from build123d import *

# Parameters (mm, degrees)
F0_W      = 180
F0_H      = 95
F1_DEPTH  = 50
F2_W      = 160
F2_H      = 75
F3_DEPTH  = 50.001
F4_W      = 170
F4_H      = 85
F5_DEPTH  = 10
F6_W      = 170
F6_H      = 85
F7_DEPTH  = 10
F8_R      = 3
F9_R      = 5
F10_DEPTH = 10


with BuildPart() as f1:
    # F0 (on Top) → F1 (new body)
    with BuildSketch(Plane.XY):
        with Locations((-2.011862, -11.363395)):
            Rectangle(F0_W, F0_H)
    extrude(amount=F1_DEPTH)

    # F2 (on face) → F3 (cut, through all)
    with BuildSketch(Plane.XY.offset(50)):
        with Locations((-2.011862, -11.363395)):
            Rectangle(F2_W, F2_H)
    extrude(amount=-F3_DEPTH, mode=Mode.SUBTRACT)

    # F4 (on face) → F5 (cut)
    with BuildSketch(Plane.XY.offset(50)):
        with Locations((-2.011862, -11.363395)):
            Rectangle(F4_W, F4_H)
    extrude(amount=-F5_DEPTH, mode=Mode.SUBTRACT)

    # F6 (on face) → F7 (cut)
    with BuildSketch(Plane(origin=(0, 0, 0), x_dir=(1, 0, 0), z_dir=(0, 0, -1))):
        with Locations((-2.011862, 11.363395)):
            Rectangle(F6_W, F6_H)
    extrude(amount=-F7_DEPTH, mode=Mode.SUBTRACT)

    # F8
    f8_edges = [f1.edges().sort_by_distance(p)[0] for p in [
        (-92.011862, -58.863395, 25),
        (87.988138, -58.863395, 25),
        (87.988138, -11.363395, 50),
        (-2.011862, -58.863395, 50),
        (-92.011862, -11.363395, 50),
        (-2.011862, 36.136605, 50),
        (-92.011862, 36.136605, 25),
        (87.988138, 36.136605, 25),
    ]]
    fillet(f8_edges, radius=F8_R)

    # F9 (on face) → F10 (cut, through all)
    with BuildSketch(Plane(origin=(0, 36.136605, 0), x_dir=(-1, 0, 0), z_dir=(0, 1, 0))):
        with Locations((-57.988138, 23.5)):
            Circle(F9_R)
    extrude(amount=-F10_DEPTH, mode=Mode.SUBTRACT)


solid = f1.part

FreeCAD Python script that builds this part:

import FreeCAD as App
import Part
import Sketcher


def edges_at(feature, points):
    """Names of the edges that pass closest to the given points."""
    edges = feature.Shape.Edges
    near = lambda p: min(range(len(edges)), key=lambda i: edges[i].distToShape(Part.Vertex(*p))[0])
    return sorted({f"Edge{near(p) + 1}" for p in points})

doc = App.newDocument("Part")
body = doc.addObject("PartDesign::Body", "Body")

# Sketch on XY plane
sketch1 = body.newObject("Sketcher::SketchObject", "Sketch")
sketch1.AttachmentSupport = (doc.getObject("XY_Plane"), [""])
sketch1.MapMode = "FlatFace"
sketch1.addGeometry(Part.LineSegment(App.Vector(-92, 36, 0), App.Vector(-92, -59, 0)), False)
sketch1.addGeometry(Part.LineSegment(App.Vector(-92, -59, 0), App.Vector(88, -59, 0)), False)
sketch1.addGeometry(Part.LineSegment(App.Vector(88, -59, 0), App.Vector(88, 36, 0)), False)
sketch1.addGeometry(Part.LineSegment(App.Vector(88, 36, 0), App.Vector(-92, 36, 0)), False)
sketch1.addConstraint(Sketcher.Constraint("Coincident", 0, 2, 1, 1))
sketch1.addConstraint(Sketcher.Constraint("Coincident", 1, 2, 2, 1))
sketch1.addConstraint(Sketcher.Constraint("Coincident", 2, 2, 3, 1))
sketch1.addConstraint(Sketcher.Constraint("Coincident", 3, 2, 0, 1))
sketch1.addConstraint(Sketcher.Constraint("Vertical", 0))
sketch1.addConstraint(Sketcher.Constraint("Horizontal", 1))
sketch1.addConstraint(Sketcher.Constraint("Vertical", 2))
sketch1.addConstraint(Sketcher.Constraint("Horizontal", 3))
sketch1.addConstraint(Sketcher.Constraint("DistanceX", 1, 1, 1, 2, 180.0))
sketch1.addConstraint(Sketcher.Constraint("DistanceY", 0, 2, 0, 1, 95.0))
sketch1.addConstraint(Sketcher.Constraint("DistanceX", 0, 2, -1, 1, 92.011862))
sketch1.addConstraint(Sketcher.Constraint("DistanceY", 0, 2, -1, 1, 58.863395))
pad1 = body.newObject("PartDesign::Pad", "Pad")
pad1.Profile = sketch1
pad1.Length = 50

# Sketch on XY plane
sketch2 = body.newObject("Sketcher::SketchObject", "Sketch001")
sketch2.AttachmentSupport = (doc.getObject("XY_Plane"), [""])
sketch2.MapMode = "FlatFace"
sketch2.AttachmentOffset = App.Placement(App.Vector(0, 0, 50), App.Rotation())
sketch2.addGeometry(Part.LineSegment(App.Vector(-82, 26, 0), App.Vector(-82, -49, 0)), False)
sketch2.addGeometry(Part.LineSegment(App.Vector(-82, -49, 0), App.Vector(78, -49, 0)), False)
sketch2.addGeometry(Part.LineSegment(App.Vector(78, -49, 0), App.Vector(78, 26, 0)), False)
sketch2.addGeometry(Part.LineSegment(App.Vector(78, 26, 0), App.Vector(-82, 26, 0)), False)
sketch2.addConstraint(Sketcher.Constraint("Coincident", 0, 2, 1, 1))
sketch2.addConstraint(Sketcher.Constraint("Coincident", 1, 2, 2, 1))
sketch2.addConstraint(Sketcher.Constraint("Coincident", 2, 2, 3, 1))
sketch2.addConstraint(Sketcher.Constraint("Coincident", 3, 2, 0, 1))
sketch2.addConstraint(Sketcher.Constraint("Vertical", 0))
sketch2.addConstraint(Sketcher.Constraint("Horizontal", 1))
sketch2.addConstraint(Sketcher.Constraint("Vertical", 2))
sketch2.addConstraint(Sketcher.Constraint("Horizontal", 3))
sketch2.addConstraint(Sketcher.Constraint("DistanceX", 1, 1, 1, 2, 160.0))
sketch2.addConstraint(Sketcher.Constraint("DistanceY", 0, 2, 0, 1, 75.0))
sketch2.addConstraint(Sketcher.Constraint("DistanceX", 0, 2, -1, 1, 82.011862))
sketch2.addConstraint(Sketcher.Constraint("DistanceY", 0, 2, -1, 1, 48.863395))
pocket1 = body.newObject("PartDesign::Pocket", "Pocket")
pocket1.Profile = sketch2
pocket1.Type = "ThroughAll"

# Sketch on XY plane
sketch3 = body.newObject("Sketcher::SketchObject", "Sketch002")
sketch3.AttachmentSupport = (doc.getObject("XY_Plane"), [""])
sketch3.MapMode = "FlatFace"
sketch3.AttachmentOffset = App.Placement(App.Vector(0, 0, 50), App.Rotation())
sketch3.addGeometry(Part.LineSegment(App.Vector(-87, 31, 0), App.Vector(-87, -54, 0)), False)
sketch3.addGeometry(Part.LineSegment(App.Vector(-87, -54, 0), App.Vector(83, -54, 0)), False)
sketch3.addGeometry(Part.LineSegment(App.Vector(83, -54, 0), App.Vector(83, 31, 0)), False)
sketch3.addGeometry(Part.LineSegment(App.Vector(83, 31, 0), App.Vector(-87, 31, 0)), False)
sketch3.addConstraint(Sketcher.Constraint("Coincident", 0, 2, 1, 1))
sketch3.addConstraint(Sketcher.Constraint("Coincident", 1, 2, 2, 1))
sketch3.addConstraint(Sketcher.Constraint("Coincident", 2, 2, 3, 1))
sketch3.addConstraint(Sketcher.Constraint("Coincident", 3, 2, 0, 1))
sketch3.addConstraint(Sketcher.Constraint("Vertical", 0))
sketch3.addConstraint(Sketcher.Constraint("Horizontal", 1))
sketch3.addConstraint(Sketcher.Constraint("Vertical", 2))
sketch3.addConstraint(Sketcher.Constraint("Horizontal", 3))
sketch3.addConstraint(Sketcher.Constraint("DistanceX", 1, 1, 1, 2, 170.0))
sketch3.addConstraint(Sketcher.Constraint("DistanceY", 0, 2, 0, 1, 85.0))
sketch3.addConstraint(Sketcher.Constraint("DistanceX", 0, 2, -1, 1, 87.011862))
sketch3.addConstraint(Sketcher.Constraint("DistanceY", 0, 2, -1, 1, 53.863395))
pocket2 = body.newObject("PartDesign::Pocket", "Pocket001")
pocket2.Profile = sketch3
pocket2.Length = 10

# Sketch on XY plane
sketch4 = body.newObject("Sketcher::SketchObject", "Sketch003")
sketch4.AttachmentSupport = (doc.getObject("XY_Plane"), [""])
sketch4.MapMode = "FlatFace"
sketch4.addGeometry(Part.LineSegment(App.Vector(-87, -54, 0), App.Vector(-87, 31, 0)), False)
sketch4.addGeometry(Part.LineSegment(App.Vector(-87, 31, 0), App.Vector(83, 31, 0)), False)
sketch4.addGeometry(Part.LineSegment(App.Vector(83, 31, 0), App.Vector(83, -54, 0)), False)
sketch4.addGeometry(Part.LineSegment(App.Vector(83, -54, 0), App.Vector(-87, -54, 0)), False)
sketch4.addConstraint(Sketcher.Constraint("Coincident", 0, 2, 1, 1))
sketch4.addConstraint(Sketcher.Constraint("Coincident", 1, 2, 2, 1))
sketch4.addConstraint(Sketcher.Constraint("Coincident", 2, 2, 3, 1))
sketch4.addConstraint(Sketcher.Constraint("Coincident", 3, 2, 0, 1))
sketch4.addConstraint(Sketcher.Constraint("Vertical", 0))
sketch4.addConstraint(Sketcher.Constraint("Horizontal", 1))
sketch4.addConstraint(Sketcher.Constraint("Vertical", 2))
sketch4.addConstraint(Sketcher.Constraint("Horizontal", 3))
sketch4.addConstraint(Sketcher.Constraint("DistanceX", 1, 1, 1, 2, 170.0))
sketch4.addConstraint(Sketcher.Constraint("DistanceY", 0, 1, 0, 2, 85.0))
sketch4.addConstraint(Sketcher.Constraint("DistanceX", 0, 2, -1, 1, 87.011862))
sketch4.addConstraint(Sketcher.Constraint("DistanceY", -1, 1, 0, 2, 31.136605))
pocket3 = body.newObject("PartDesign::Pocket", "Pocket002")
pocket3.Profile = sketch4
pocket3.Length = 10
pocket3.Reversed = True
doc.recompute()

fillet = body.newObject("PartDesign::Fillet", "Fillet")
fillet.Base = (pocket3, edges_at(pocket3, [
    (-92.012, -58.863, 25),
    (87.988, -58.863, 25),
    (87.988, -11.363, 50),
    (-2.012, -58.863, 50),
    (-92.012, -11.363, 50),
    (-2.012, 36.137, 50),
    (-92.012, 36.137, 25),
    (87.988, 36.137, 25),
]))
fillet.Radius = 3

# Sketch on XZ plane
sketch5 = body.newObject("Sketcher::SketchObject", "Sketch004")
sketch5.AttachmentSupport = (doc.getObject("XZ_Plane"), [""])
sketch5.MapMode = "FlatFace"
sketch5.AttachmentOffset = App.Placement(App.Vector(0, 0, -36.136605), App.Rotation())
sketch5.addGeometry(Part.Circle(App.Vector(58, 24, 0), App.Vector(0, 0, 1), 5), False)
sketch5.addConstraint(Sketcher.Constraint("Diameter", 0, 10.0))
sketch5.addConstraint(Sketcher.Constraint("DistanceY", -1, 1, 0, 3, 23.5))
sketch5.addConstraint(Sketcher.Constraint("DistanceX", -1, 1, 0, 3, 57.988138))
pocket4 = body.newObject("PartDesign::Pocket", "Pocket003")
pocket4.Profile = sketch5
pocket4.Length = 10
pocket4.Reversed = True

doc.recompute()
